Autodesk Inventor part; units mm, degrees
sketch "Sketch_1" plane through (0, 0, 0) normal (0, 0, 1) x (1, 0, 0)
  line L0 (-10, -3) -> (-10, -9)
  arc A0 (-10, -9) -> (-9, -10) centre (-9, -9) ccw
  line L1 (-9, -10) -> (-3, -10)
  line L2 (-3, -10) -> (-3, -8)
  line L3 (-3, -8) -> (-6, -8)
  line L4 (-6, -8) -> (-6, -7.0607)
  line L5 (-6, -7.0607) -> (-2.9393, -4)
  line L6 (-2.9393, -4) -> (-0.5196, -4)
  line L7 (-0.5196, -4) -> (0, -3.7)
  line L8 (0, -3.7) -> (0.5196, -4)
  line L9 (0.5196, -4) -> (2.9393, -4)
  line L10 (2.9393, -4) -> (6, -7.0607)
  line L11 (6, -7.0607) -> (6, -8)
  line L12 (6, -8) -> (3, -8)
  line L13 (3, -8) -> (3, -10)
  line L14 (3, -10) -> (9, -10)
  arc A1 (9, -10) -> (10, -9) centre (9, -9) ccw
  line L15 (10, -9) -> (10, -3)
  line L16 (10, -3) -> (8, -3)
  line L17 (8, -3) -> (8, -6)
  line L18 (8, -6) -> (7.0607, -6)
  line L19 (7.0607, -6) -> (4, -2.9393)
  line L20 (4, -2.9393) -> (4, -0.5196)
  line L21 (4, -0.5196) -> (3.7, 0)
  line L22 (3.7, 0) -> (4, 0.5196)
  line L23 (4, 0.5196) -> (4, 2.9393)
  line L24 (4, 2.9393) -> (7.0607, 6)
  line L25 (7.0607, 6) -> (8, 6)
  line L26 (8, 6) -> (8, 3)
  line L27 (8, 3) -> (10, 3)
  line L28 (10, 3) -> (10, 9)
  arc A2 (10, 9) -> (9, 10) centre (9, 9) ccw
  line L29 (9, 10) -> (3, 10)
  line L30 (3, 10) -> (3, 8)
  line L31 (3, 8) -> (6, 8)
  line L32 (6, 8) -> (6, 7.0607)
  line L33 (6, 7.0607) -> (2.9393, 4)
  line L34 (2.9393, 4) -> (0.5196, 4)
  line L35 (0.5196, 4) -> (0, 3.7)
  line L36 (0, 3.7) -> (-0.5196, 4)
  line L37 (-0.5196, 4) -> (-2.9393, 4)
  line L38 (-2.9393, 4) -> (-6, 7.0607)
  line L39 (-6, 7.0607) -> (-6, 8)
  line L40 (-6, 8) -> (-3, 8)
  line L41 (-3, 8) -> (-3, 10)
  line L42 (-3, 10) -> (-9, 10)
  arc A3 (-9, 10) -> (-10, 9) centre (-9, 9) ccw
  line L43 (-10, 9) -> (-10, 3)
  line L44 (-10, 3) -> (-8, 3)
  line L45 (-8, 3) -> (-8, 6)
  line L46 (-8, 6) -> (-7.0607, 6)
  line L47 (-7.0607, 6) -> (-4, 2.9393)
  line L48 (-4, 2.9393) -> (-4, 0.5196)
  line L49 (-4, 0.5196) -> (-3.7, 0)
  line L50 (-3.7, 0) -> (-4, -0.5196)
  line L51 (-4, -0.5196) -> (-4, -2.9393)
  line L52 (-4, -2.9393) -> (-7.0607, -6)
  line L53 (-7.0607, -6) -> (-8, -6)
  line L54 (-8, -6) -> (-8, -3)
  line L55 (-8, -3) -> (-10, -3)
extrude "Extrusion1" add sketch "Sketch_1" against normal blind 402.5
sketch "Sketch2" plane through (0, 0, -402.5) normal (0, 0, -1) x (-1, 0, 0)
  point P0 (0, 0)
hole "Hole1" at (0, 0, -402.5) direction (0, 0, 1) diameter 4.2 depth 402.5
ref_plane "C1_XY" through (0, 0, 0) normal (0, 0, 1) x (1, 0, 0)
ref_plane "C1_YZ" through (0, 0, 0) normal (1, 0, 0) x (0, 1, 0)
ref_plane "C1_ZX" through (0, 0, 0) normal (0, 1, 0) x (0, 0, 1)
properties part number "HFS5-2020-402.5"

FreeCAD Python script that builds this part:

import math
import FreeCAD as App
import Part
import Sketcher
from FreeCAD import Vector
Q = App.Units.Quantity

doc = App.newDocument("Part")
body = doc.addObject("PartDesign::Body", "Body")

# Sketch on XY plane
sketch1 = body.newObject("Sketcher::SketchObject", "Sketch")
sketch1.AttachmentSupport = (doc.getObject("XY_Plane"), [""])
sketch1.MapMode = "FlatFace"
sketch1.addGeometry(Part.LineSegment(Vector(-8, -3, 0), Vector(-10, -3, 0)), False)
sketch1.addGeometry(Part.LineSegment(Vector(-10, -3, 0), Vector(-10, -9, 0)), False)
sketch1.addGeometry(Part.ArcOfCircle(Part.Circle(Vector(-9, -9, 0), Vector(0, 0, 1), 1), math.radians(180), math.radians(270)), False)
sketch1.addGeometry(Part.LineSegment(Vector(-9, -10, 0), Vector(-3, -10, 0)), False)
sketch1.addGeometry(Part.LineSegment(Vector(-3, -10, 0), Vector(-3, -8, 0)), False)
sketch1.addGeometry(Part.LineSegment(Vector(-3, -8, 0), Vector(-6, -8, 0)), False)
sketch1.addGeometry(Part.LineSegment(Vector(-6, -8, 0), Vector(-6, -7.0607, 0)), False)
sketch1.addGeometry(Part.LineSegment(Vector(-6, -7.0607, 0), Vector(-2.9393, -4, 0)), False)
sketch1.addGeometry(Part.LineSegment(Vector(-2.9393, -4, 0), Vector(-0.5196, -4, 0)), False)
sketch1.addGeometry(Part.LineSegment(Vector(-0.5196, -4, 0), Vector(0, -3.7, 0)), False)
sketch1.addGeometry(Part.LineSegment(Vector(0, -3.7, 0), Vector(0.5196, -4, 0)), False)
sketch1.addGeometry(Part.LineSegment(Vector(0.5196, -4, 0), Vector(2.9393, -4, 0)), False)
sketch1.addGeometry(Part.LineSegment(Vector(2.9393, -4, 0), Vector(6, -7.0607, 0)), False)
sketch1.addGeometry(Part.LineSegment(Vector(6, -7.0607, 0), Vector(6, -8, 0)), False)
sketch1.addGeometry(Part.LineSegment(Vector(6, -8, 0), Vector(3, -8, 0)), False)
sketch1.addGeometry(Part.LineSegment(Vector(3, -8, 0), Vector(3, -10, 0)), False)
sketch1.addGeometry(Part.LineSegment(Vector(3, -10, 0), Vector(9, -10, 0)), False)
sketch1.addGeometry(Part.ArcOfCircle(Part.Circle(Vector(9, -9, 0), Vector(0, 0, 1), 1), math.radians(-90), math.radians(0)), False)
sketch1.addGeometry(Part.LineSegment(Vector(10, -9, 0), Vector(10, -3, 0)), False)
sketch1.addGeometry(Part.LineSegment(Vector(10, -3, 0), Vector(8, -3, 0)), False)
sketch1.addGeometry(Part.LineSegment(Vector(8, -3, 0), Vector(8, -6, 0)), False)
sketch1.addGeometry(Part.LineSegment(Vector(8, -6, 0), Vector(7.0607, -6, 0)), False)
sketch1.addGeometry(Part.LineSegment(Vector(7.0607, -6, 0), Vector(4, -2.9393, 0)), False)
sketch1.addGeometry(Part.LineSegment(Vector(4, -2.9393, 0), Vector(4, -0.5196, 0)), False)
sketch1.addGeometry(Part.LineSegment(Vector(4, -0.5196, 0), Vector(3.7, 0, 0)), False)
sketch1.addGeometry(Part.LineSegment(Vector(3.7, 0, 0), Vector(4, 0.5196, 0)), False)
sketch1.addGeometry(Part.LineSegment(Vector(4, 0.5196, 0), Vector(4, 2.9393, 0)), False)
sketch1.addGeometry(Part.LineSegment(Vector(4, 2.9393, 0), Vector(7.0607, 6, 0)), False)
sketch1.addGeometry(Part.LineSegment(Vector(7.0607, 6, 0), Vector(8, 6, 0)), False)
sketch1.addGeometry(Part.LineSegment(Vector(8, 6, 0), Vector(8, 3, 0)), False)
sketch1.addGeometry(Part.LineSegment(Vector(8, 3, 0), Vector(10, 3, 0)), False)
sketch1.addGeometry(Part.LineSegment(Vector(10, 3, 0), Vector(10, 9, 0)), False)
sketch1.addGeometry(Part.ArcOfCircle(Part.Circle(Vector(9, 9, 0), Vector(0, 0, 1), 1), math.radians(0), math.radians(90)), False)
sketch1.addGeometry(Part.LineSegment(Vector(9, 10, 0), Vector(3, 10, 0)), False)
sketch1.addGeometry(Part.LineSegment(Vector(3, 10, 0), Vector(3, 8, 0)), False)
sketch1.addGeometry(Part.LineSegment(Vector(3, 8, 0), Vector(6, 8, 0)), False)
sketch1.addGeometry(Part.LineSegment(Vector(6, 8, 0), Vector(6, 7.0607, 0)), False)
sketch1.addGeometry(Part.LineSegment(Vector(6, 7.0607, 0), Vector(2.9393, 4, 0)), False)
sketch1.addGeometry(Part.LineSegment(Vector(2.9393, 4, 0), Vector(0.5196, 4, 0)), False)
sketch1.addGeometry(Part.LineSegment(Vector(0.5196, 4, 0), Vector(0, 3.7, 0)), False)
sketch1.addGeometry(Part.LineSegment(Vector(0, 3.7, 0), Vector(-0.5196, 4, 0)), False)
sketch1.addGeometry(Part.LineSegment(Vector(-0.5196, 4, 0), Vector(-2.9393, 4, 0)), False)
sketch1.addGeometry(Part.LineSegment(Vector(-2.9393, 4, 0), Vector(-6, 7.0607, 0)), False)
sketch1.addGeometry(Part.LineSegment(Vector(-6, 7.0607, 0), Vector(-6, 8, 0)), False)
sketch1.addGeometry(Part.LineSegment(Vector(-6, 8, 0), Vector(-3, 8, 0)), False)
sketch1.addGeometry(Part.LineSegment(Vector(-3, 8, 0), Vector(-3, 10, 0)), False)
sketch1.addGeometry(Part.LineSegment(Vector(-3, 10, 0), Vector(-9, 10, 0)), False)
sketch1.addGeometry(Part.ArcOfCircle(Part.Circle(Vector(-9, 9, 0), Vector(0, 0, 1), 1), math.radians(90), math.radians(180)), False)
sketch1.addGeometry(Part.LineSegment(Vector(-10, 9, 0), Vector(-10, 3, 0)), False)
sketch1.addGeometry(Part.LineSegment(Vector(-10, 3, 0), Vector(-8, 3, 0)), False)
sketch1.addGeometry(Part.LineSegment(Vector(-8, 3, 0), Vector(-8, 6, 0)), False)
sketch1.addGeometry(Part.LineSegment(Vector(-8, 6, 0), Vector(-7.0607, 6, 0)), False)
sketch1.addGeometry(Part.LineSegment(Vector(-7.0607, 6, 0), Vector(-4, 2.9393, 0)), False)
sketch1.addGeometry(Part.LineSegment(Vector(-4, 2.9393, 0), Vector(-4, 0.5196, 0)), False)
sketch1.addGeometry(Part.LineSegment(Vector(-4, 0.5196, 0), Vector(-3.7, 0, 0)), False)
sketch1.addGeometry(Part.LineSegment(Vector(-3.7, 0, 0), Vector(-4, -0.5196, 0)), False)
sketch1.addGeometry(Part.LineSegment(Vector(-4, -0.5196, 0), Vector(-4, -2.9393, 0)), False)
sketch1.addGeometry(Part.LineSegment(Vector(-4, -2.9393, 0), Vector(-7.0607, -6, 0)), False)
sketch1.addGeometry(Part.LineSegment(Vector(-7.0607, -6, 0), Vector(-8, -6, 0)), False)
sketch1.addGeometry(Part.LineSegment(Vector(-8, -6, 0), Vector(-8, -3, 0)), False)
sketch1.addConstraint(Sketcher.Constraint("Coincident", 0, 2, 1, 1))
sketch1.addConstraint(Sketcher.Constraint("Tangent", 1, 2, 2, 1))
sketch1.addConstraint(Sketcher.Constraint("Tangent", 2, 2, 3, 1))
sketch1.addConstraint(Sketcher.Constraint("Coincident", 3, 2, 4, 1))
sketch1.addConstraint(Sketcher.Constraint("Coincident", 4, 2, 5, 1))
sketch1.addConstraint(Sketcher.Constraint("Coincident", 5, 2, 6, 1))
sketch1.addConstraint(Sketcher.Constraint("Coincident", 6, 2, 7, 1))
sketch1.addConstraint(Sketcher.Constraint("Coincident", 7, 2, 8, 1))
sketch1.addConstraint(Sketcher.Constraint("Coincident", 8, 2, 9, 1))
sketch1.addConstraint(Sketcher.Constraint("Coincident", 9, 2, 10, 1))
sketch1.addConstraint(Sketcher.Constraint("Coincident", 10, 2, 11, 1))
sketch1.addConstraint(Sketcher.Constraint("Coincident", 11, 2, 12, 1))
sketch1.addConstraint(Sketcher.Constraint("Coincident", 12, 2, 13, 1))
sketch1.addConstraint(Sketcher.Constraint("Coincident", 13, 2, 14, 1))
sketch1.addConstraint(Sketcher.Constraint("Coincident", 14, 2, 15, 1))
sketch1.addConstraint(Sketcher.Constraint("Coincident", 15, 2, 16, 1))
sketch1.addConstraint(Sketcher.Constraint("Tangent", 16, 2, 17, 1))
sketch1.addConstraint(Sketcher.Constraint("Tangent", 17, 2, 18, 1))
sketch1.addConstraint(Sketcher.Constraint("Coincident", 18, 2, 19, 1))
sketch1.addConstraint(Sketcher.Constraint("Coincident", 19, 2, 20, 1))
sketch1.addConstraint(Sketcher.Constraint("Coincident", 20, 2, 21, 1))
sketch1.addConstraint(Sketcher.Constraint("Coincident", 21, 2, 22, 1))
sketch1.addConstraint(Sketcher.Constraint("Coincident", 22, 2, 23, 1))
sketch1.addConstraint(Sketcher.Constraint("Coincident", 23, 2, 24, 1))
sketch1.addConstraint(Sketcher.Constraint("Coincident", 24, 2, 25, 1))
sketch1.addConstraint(Sketcher.Constraint("Coincident", 25, 2, 26, 1))
sketch1.addConstraint(Sketcher.Constraint("Coincident", 26, 2, 27, 1))
sketch1.addConstraint(Sketcher.Constraint("Coincident", 27, 2, 28, 1))
sketch1.addConstraint(Sketcher.Constraint("Coincident", 28, 2, 29, 1))
sketch1.addConstraint(Sketcher.Constraint("Coincident", 29, 2, 30, 1))
sketch1.addConstraint(Sketcher.Constraint("Coincident", 30, 2, 31, 1))
sketch1.addConstraint(Sketcher.Constraint("Tangent", 31, 2, 32, 1))
sketch1.addConstraint(Sketcher.Constraint("Tangent", 32, 2, 33, 1))
sketch1.addConstraint(Sketcher.Constraint("Coincident", 33, 2, 34, 1))
sketch1.addConstraint(Sketcher.Constraint("Coincident", 34, 2, 35, 1))
sketch1.addConstraint(Sketcher.Constraint("Coincident", 35, 2, 36, 1))
sketch1.addConstraint(Sketcher.Constraint("Coincident", 36, 2, 37, 1))
sketch1.addConstraint(Sketcher.Constraint("Coincident", 37, 2, 38, 1))
sketch1.addConstraint(Sketcher.Constraint("Coincident", 38, 2, 39, 1))
sketch1.addConstraint(Sketcher.Constraint("Coincident", 39, 2, 40, 1))
sketch1.addConstraint(Sketcher.Constraint("Coincident", 40, 2, 41, 1))
sketch1.addConstraint(Sketcher.Constraint("Coincident", 41, 2, 42, 1))
sketch1.addConstraint(Sketcher.Constraint("Coincident", 42, 2, 43, 1))
sketch1.addConstraint(Sketcher.Constraint("Coincident", 43, 2, 44, 1))
sketch1.addConstraint(Sketcher.Constraint("Coincident", 44, 2, 45, 1))
sketch1.addConstraint(Sketcher.Constraint("Coincident", 45, 2, 46, 1))
sketch1.addConstraint(Sketcher.Constraint("Tangent", 46, 2, 47, 1))
sketch1.addConstraint(Sketcher.Constraint("Tangent", 47, 2, 48, 1))
sketch1.addConstraint(Sketcher.Constraint("Coincident", 48, 2, 49, 1))
sketch1.addConstraint(Sketcher.Constraint("Coincident", 49, 2, 50, 1))
sketch1.addConstraint(Sketcher.Constraint("Coincident", 50, 2, 51, 1))
sketch1.addConstraint(Sketcher.Constraint("Coincident", 51, 2, 52, 1))
sketch1.addConstraint(Sketcher.Constraint("Coincident", 52, 2, 53, 1))
sketch1.addConstraint(Sketcher.Constraint("Coincident", 53, 2, 54, 1))
sketch1.addConstraint(Sketcher.Constraint("Coincident", 54, 2, 55, 1))
sketch1.addConstraint(Sketcher.Constraint("Coincident", 55, 2, 56, 1))
sketch1.addConstraint(Sketcher.Constraint("Coincident", 56, 2, 57, 1))
sketch1.addConstraint(Sketcher.Constraint("Coincident", 57, 2, 58, 1))
sketch1.addConstraint(Sketcher.Constraint("Coincident", 58, 2, 59, 1))
sketch1.addConstraint(Sketcher.Constraint("Coincident", 59, 2, 0, 1))
sketch1.addConstraint(Sketcher.Constraint("Horizontal", 0))
sketch1.addConstraint(Sketcher.Constraint("Vertical", 1))
sketch1.addConstraint(Sketcher.Constraint("Horizontal", 3))
sketch1.addConstraint(Sketcher.Constraint("Vertical", 4))
sketch1.addConstraint(Sketcher.Constraint("Horizontal", 5))
sketch1.addConstraint(Sketcher.Constraint("Vertical", 6))
sketch1.addConstraint(Sketcher.Constraint("Horizontal", 8))
sketch1.addConstraint(Sketcher.Constraint("Horizontal", 11))
sketch1.addConstraint(Sketcher.Constraint("Vertical", 13))
sketch1.addConstraint(Sketcher.Constraint("Horizontal", 14))
sketch1.addConstraint(Sketcher.Constraint("Vertical", 15))
sketch1.addConstraint(Sketcher.Constraint("Horizontal", 16))
sketch1.addConstraint(Sketcher.Constraint("Vertical", 18))
sketch1.addConstraint(Sketcher.Constraint("Horizontal", 19))
sketch1.addConstraint(Sketcher.Constraint("Vertical", 20))
sketch1.addConstraint(Sketcher.Constraint("Horizontal", 21))
sketch1.addConstraint(Sketcher.Constraint("Vertical", 23))
sketch1.addConstraint(Sketcher.Constraint("Vertical", 26))
sketch1.addConstraint(Sketcher.Constraint("Horizontal", 28))
sketch1.addConstraint(Sketcher.Constraint("Vertical", 29))
sketch1.addConstraint(Sketcher.Constraint("Horizontal", 30))
sketch1.addConstraint(Sketcher.Constraint("Vertical", 31))
sketch1.addConstraint(Sketcher.Constraint("Horizontal", 33))
sketch1.addConstraint(Sketcher.Constraint("Vertical", 34))
sketch1.addConstraint(Sketcher.Constraint("Horizontal", 35))
sketch1.addConstraint(Sketcher.Constraint("Vertical", 36))
sketch1.addConstraint(Sketcher.Constraint("Horizontal", 38))
sketch1.addConstraint(Sketcher.Constraint("Horizontal", 41))
sketch1.addConstraint(Sketcher.Constraint("Vertical", 43))
sketch1.addConstraint(Sketcher.Constraint("Horizontal", 44))
sketch1.addConstraint(Sketcher.Constraint("Vertical", 45))
sketch1.addConstraint(Sketcher.Constraint("Horizontal", 46))
sketch1.addConstraint(Sketcher.Constraint("Vertical", 48))
sketch1.addConstraint(Sketcher.Constraint("Horizontal", 49))
sketch1.addConstraint(Sketcher.Constraint("Vertical", 50))
sketch1.addConstraint(Sketcher.Constraint("Horizontal", 51))
sketch1.addConstraint(Sketcher.Constraint("Vertical", 53))
sketch1.addConstraint(Sketcher.Constraint("Vertical", 56))
sketch1.addConstraint(Sketcher.Constraint("Horizontal", 58))
sketch1.addConstraint(Sketcher.Constraint("Vertical", 59))
sketch1.addConstraint(Sketcher.Constraint("Equal", 2, 17))
sketch1.addConstraint(Sketcher.Constraint("Equal", 17, 32))
sketch1.addConstraint(Sketcher.Constraint("Equal", 32, 47))
sketch1.addConstraint(Sketcher.Constraint("Symmetric", 2, 3, 32, 3, -1, 1))
sketch1.addConstraint(Sketcher.Constraint("Symmetric", 17, 3, 47, 3, -1, 1))
sketch1.addConstraint(Sketcher.Constraint("Symmetric", 4, 2, 34, 2, -1, 1))
sketch1.addConstraint(Sketcher.Constraint("Symmetric", 6, 2, 36, 2, -1, 1))
sketch1.addConstraint(Sketcher.Constraint("Symmetric", 7, 2, 37, 2, -1, 1))
sketch1.addConstraint(Sketcher.Constraint("Symmetric", 9, 2, 39, 2, -1, 1))
sketch1.addConstraint(Sketcher.Constraint("Symmetric", 10, 2, 40, 2, -1, 1))
sketch1.addConstraint(Sketcher.Constraint("Symmetric", 12, 2, 42, 2, -1, 1))
sketch1.addConstraint(Sketcher.Constraint("Symmetric", 14, 2, 44, 2, -1, 1))
sketch1.addConstraint(Sketcher.Constraint("Symmetric", 19, 2, 49, 2, -1, 1))
sketch1.addConstraint(Sketcher.Constraint("Symmetric", 21, 2, 51, 2, -1, 1))
sketch1.addConstraint(Sketcher.Constraint("Symmetric", 22, 2, 52, 2, -1, 1))
sketch1.addConstraint(Sketcher.Constraint("Symmetric", 24, 2, 54, 2, -1, 1))
sketch1.addConstraint(Sketcher.Constraint("Symmetric", 25, 2, 55, 2, -1, 1))
sketch1.addConstraint(Sketcher.Constraint("Symmetric", 27, 2, 57, 2, -1, 1))
sketch1.addConstraint(Sketcher.Constraint("Symmetric", 29, 2, 59, 2, -1, 1))
sketch1.addConstraint(Sketcher.Constraint("Symmetric", 2, 3, 17, 3, -2))
sketch1.addConstraint(Sketcher.Constraint("Symmetric", 8, 2, 10, 2, -2))
sketch1.addConstraint(Sketcher.Constraint("Symmetric", 6, 2, 12, 2, -2))
sketch1.addConstraint(Sketcher.Constraint("Symmetric", 4, 2, 14, 2, -2))
sketch1.addConstraint(Sketcher.Constraint("Symmetric", 29, 2, 49, 2, -2))
sketch1.addConstraint(Sketcher.Constraint("Symmetric", 27, 2, 51, 2, -2))
sketch1.addConstraint(Sketcher.Constraint("Symmetric", 26, 2, 52, 2, -2))
sketch1.addConstraint(Sketcher.Constraint("PointOnObject", 9, 2, -2))
sketch1.addConstraint(Sketcher.Constraint("PointOnObject", 24, 2, -1))
sketch1.addConstraint(Sketcher.Constraint("Perpendicular", 7, 12))
sketch1.addConstraint(Sketcher.Constraint("Parallel", 12, 22))
sketch1.addConstraint(Sketcher.Constraint("Perpendicular", 9, 24))
sketch1.addConstraint(Sketcher.Constraint("Perpendicular", 10, 25))
sketch1.addConstraint(Sketcher.Constraint("Perpendicular", 22, 27))
sketch1.addConstraint(Sketcher.Constraint("Perpendicular", 24, 39))
sketch1.addConstraint(Sketcher.Constraint("Perpendicular", 37, 42))
sketch1.addConstraint(Sketcher.Constraint("Perpendicular", 39, 54))
sketch1.addConstraint(Sketcher.Constraint("Perpendicular", 52, 57))
sketch1.addConstraint(Sketcher.Constraint("Equal", 46, 1))
sketch1.addConstraint(Sketcher.Constraint("Equal", 49, 4))
sketch1.addConstraint(Sketcher.Constraint("Equal", 58, 6))
sketch1.addConstraint(Sketcher.Constraint("Equal", 44, 20))
sketch1.addConstraint(Sketcher.Constraint("Equal", 41, 23))
sketch1.addConstraint(Sketcher.Constraint("Equal", 12, 22))
sketch1.addConstraint(Sketcher.Constraint("Equal", 10, 24))
sketch1.addConstraint(Sketcher.Constraint("Radius", 2, 1.0))
sketch1.addConstraint(Sketcher.Constraint("DistanceX", 0, 2, 0, 1, 2.0))
sketch1.addConstraint(Sketcher.Constraint("DistanceX", 3, 1, 3, 2, 6.0))
sketch1.addConstraint(Sketcher.Constraint("DistanceX", 5, 2, 5, 1, 3.0))
sketch1.addConstraint(Sketcher.Constraint("Angle", 9, Q("30.0007 deg")))
sketch1.addConstraint(Sketcher.Constraint("DistanceX", 2, 3, -1, 1, 9.0))
sketch1.addConstraint(Sketcher.Constraint("DistanceY", 7, 2, -1, 1, 4.0))
sketch1.addConstraint(Sketcher.Constraint("Distance", 9, 0.6))
sketch1.addConstraint(Sketcher.Constraint("DistanceX", 8, 1, 8, 2, 2.4197))
pad1 = body.newObject("PartDesign::Pad", "Pad")
pad1.Profile = sketch1
pad1.Length = 402.5
pad1.Reversed = True

# Sketch on XY plane
sketch2 = body.newObject("Sketcher::SketchObject", "Sketch001")
sketch2.AttachmentSupport = (doc.getObject("XY_Plane"), [""])
sketch2.MapMode = "FlatFace"
sketch2.AttachmentOffset = App.Placement(Vector(0, 0, -402.5), App.Rotation())
sketch2.addGeometry(Part.Circle(Vector(0, 0, 0), Vector(0, 0, 1), 2.1), False)
sketch2.addConstraint(Sketcher.Constraint("Coincident", 0, 3, -1, 1))
sketch2.addConstraint(Sketcher.Constraint("Diameter", 0, 4.2))
doc.recompute()
hole = body.newObject("PartDesign::Hole", "Hole")
hole.Profile = sketch2
hole.ThreadType = "None"
hole.Diameter = 4.2
hole.DepthType = "Dimension"
hole.Depth = 402.5
hole.DrillPoint = "Flat"
hole.Reversed = True

doc.recompute()
